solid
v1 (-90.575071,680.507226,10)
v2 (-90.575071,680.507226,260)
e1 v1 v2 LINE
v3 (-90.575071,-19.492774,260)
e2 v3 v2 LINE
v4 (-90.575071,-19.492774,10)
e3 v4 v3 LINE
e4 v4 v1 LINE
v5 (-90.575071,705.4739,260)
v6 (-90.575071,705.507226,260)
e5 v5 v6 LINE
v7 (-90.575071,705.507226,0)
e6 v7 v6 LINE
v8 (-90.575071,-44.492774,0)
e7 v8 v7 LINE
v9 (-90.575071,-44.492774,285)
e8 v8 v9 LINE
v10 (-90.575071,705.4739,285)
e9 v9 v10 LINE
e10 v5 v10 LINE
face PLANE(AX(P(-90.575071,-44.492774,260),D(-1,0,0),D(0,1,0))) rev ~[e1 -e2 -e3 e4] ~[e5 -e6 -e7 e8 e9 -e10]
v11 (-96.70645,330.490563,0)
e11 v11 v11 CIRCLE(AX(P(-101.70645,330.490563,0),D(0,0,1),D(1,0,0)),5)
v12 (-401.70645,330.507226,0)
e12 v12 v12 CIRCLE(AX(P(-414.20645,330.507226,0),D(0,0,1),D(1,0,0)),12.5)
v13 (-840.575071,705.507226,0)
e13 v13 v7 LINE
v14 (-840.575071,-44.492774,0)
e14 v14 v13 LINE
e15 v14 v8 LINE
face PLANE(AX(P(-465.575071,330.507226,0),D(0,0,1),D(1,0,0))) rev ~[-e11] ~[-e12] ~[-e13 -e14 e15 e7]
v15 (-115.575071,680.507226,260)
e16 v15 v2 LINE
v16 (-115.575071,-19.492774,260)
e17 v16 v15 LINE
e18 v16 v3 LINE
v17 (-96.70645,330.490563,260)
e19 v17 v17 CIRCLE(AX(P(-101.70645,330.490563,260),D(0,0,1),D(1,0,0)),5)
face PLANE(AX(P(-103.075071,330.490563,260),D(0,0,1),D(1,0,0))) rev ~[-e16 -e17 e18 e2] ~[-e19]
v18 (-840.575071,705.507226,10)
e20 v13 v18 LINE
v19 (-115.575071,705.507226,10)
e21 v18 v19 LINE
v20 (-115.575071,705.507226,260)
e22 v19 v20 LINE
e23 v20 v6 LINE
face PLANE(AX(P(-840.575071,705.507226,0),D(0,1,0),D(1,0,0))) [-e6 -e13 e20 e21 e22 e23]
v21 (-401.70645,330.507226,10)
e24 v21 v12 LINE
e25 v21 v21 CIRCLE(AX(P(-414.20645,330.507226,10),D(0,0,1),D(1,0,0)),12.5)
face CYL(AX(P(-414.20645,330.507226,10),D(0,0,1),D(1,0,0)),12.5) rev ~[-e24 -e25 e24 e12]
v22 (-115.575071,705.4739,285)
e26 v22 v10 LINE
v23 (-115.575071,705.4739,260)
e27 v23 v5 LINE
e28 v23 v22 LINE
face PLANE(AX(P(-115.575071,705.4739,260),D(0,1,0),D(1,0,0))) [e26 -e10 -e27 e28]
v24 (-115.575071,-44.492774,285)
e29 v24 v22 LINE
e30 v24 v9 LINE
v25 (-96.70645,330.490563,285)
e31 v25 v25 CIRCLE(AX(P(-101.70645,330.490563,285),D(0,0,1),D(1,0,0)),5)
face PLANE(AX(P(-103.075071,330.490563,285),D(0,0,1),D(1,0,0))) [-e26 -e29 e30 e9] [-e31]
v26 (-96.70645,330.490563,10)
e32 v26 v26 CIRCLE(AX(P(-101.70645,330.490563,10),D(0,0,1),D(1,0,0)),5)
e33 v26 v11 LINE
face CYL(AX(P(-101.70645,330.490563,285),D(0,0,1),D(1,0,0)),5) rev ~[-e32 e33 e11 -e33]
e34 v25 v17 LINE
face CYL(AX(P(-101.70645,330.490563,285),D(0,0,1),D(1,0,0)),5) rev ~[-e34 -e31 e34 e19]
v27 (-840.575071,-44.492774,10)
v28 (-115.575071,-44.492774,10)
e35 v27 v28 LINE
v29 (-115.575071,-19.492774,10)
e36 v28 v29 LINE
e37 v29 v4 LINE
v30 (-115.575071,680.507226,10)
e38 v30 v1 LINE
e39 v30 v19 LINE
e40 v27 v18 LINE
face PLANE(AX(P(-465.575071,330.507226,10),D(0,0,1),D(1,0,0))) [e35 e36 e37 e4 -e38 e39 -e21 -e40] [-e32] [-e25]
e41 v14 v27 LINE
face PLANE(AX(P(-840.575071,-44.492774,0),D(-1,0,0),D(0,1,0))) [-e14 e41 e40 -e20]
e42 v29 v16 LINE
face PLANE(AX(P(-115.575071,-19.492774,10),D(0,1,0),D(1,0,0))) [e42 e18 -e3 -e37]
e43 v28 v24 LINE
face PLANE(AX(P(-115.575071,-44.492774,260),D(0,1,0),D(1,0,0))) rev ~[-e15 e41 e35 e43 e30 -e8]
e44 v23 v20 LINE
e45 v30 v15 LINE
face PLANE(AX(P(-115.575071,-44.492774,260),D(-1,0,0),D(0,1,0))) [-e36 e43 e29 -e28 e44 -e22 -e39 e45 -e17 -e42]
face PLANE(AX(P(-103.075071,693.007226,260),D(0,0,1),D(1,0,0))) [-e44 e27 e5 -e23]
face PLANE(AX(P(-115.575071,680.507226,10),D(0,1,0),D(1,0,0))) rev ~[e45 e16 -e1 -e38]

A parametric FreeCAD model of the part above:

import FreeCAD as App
import Part
import Sketcher
Q = App.Units.Quantity

doc = App.newDocument("Part")
params = doc.addObject("Spreadsheet::Sheet", "Params")
for row, (alias, value) in enumerate([
    ("sketch1_width", "750 mm"),
    ("pad1_length", "10 mm"),
    ("sketch2_width", "25 mm"),
    ("pad2_length", "250 mm"),
    ("sketch3_width", "25 mm"),
    ("pad3_length", "25 mm"),
    ("sketch4_diameter", "10 mm"),
    ("sketch5_diameter", "25 mm"),
    ("pocket2_length", "25 mm"),
], start=1):
    params.set(f"A{row}", alias)
    params.set(f"B{row}", "=" + value)
    params.setAlias(f"B{row}", alias)

body = doc.addObject("PartDesign::Body", "Body")

# Sketch on XY plane
sketch1 = doc.addObject("Sketcher::SketchObject", "Sketch")
body.addObject(sketch1)
sketch1.AttachmentSupport = (doc.XY_Plane, [""])
sketch1.MapMode = "FlatFace"
sketch1.addGeometry(Part.LineSegment(App.Vector(-840.575071, 705.507226, 0), App.Vector(-840.575071, -44.492774, 0)), False)
sketch1.addGeometry(Part.LineSegment(App.Vector(-840.575071, -44.492774, 0), App.Vector(-90.575071, -44.492774, 0)), False)
sketch1.addGeometry(Part.LineSegment(App.Vector(-90.575071, -44.492774, 0), App.Vector(-90.575071, 705.507226, 0)), False)
sketch1.addGeometry(Part.LineSegment(App.Vector(-90.575071, 705.507226, 0), App.Vector(-840.575071, 705.507226, 0)), False)
sketch1.addConstraint(Sketcher.Constraint("Coincident", 0, 2, 1, 1))
sketch1.addConstraint(Sketcher.Constraint("Coincident", 1, 2, 2, 1))
sketch1.addConstraint(Sketcher.Constraint("Coincident", 2, 2, 3, 1))
sketch1.addConstraint(Sketcher.Constraint("Coincident", 3, 2, 0, 1))
sketch1.addConstraint(Sketcher.Constraint("Vertical", 0))
sketch1.addConstraint(Sketcher.Constraint("Horizontal", 1))
sketch1.addConstraint(Sketcher.Constraint("Vertical", 2))
sketch1.addConstraint(Sketcher.Constraint("Horizontal", 3))
sketch1.addConstraint(Sketcher.Constraint("Equal", 3, 0))
sketch1.addConstraint(Sketcher.Constraint("DistanceX", 1, 1, 1, 2, Q("750 mm")))
sketch1.addConstraint(Sketcher.Constraint("DistanceX", 0, 2, -1, 1, Q("840.575071 mm")))
sketch1.addConstraint(Sketcher.Constraint("DistanceY", 0, 2, -1, 1, Q("44.492774 mm")))
sketch1.setExpression("Constraints[9]", "Params.sketch1_width")
pad1 = doc.addObject("PartDesign::Pad", "Pad")
body.addObject(pad1)
pad1.Profile = sketch1
pad1.setExpression("Length", "Params.pad1_length")

# Sketch on XY plane
sketch2 = doc.addObject("Sketcher::SketchObject", "Sketch001")
body.addObject(sketch2)
sketch2.AttachmentSupport = (doc.XY_Plane, [""])
sketch2.MapMode = "FlatFace"
sketch2.AttachmentOffset = App.Placement(App.Vector(0, 0, 10), App.Rotation())
sketch2.addGeometry(Part.LineSegment(App.Vector(-115.575071, -19.492774, 0), App.Vector(-115.575071, -44.492774, 0)), False)
sketch2.addGeometry(Part.LineSegment(App.Vector(-115.575071, -44.492774, 0), App.Vector(-90.575071, -44.492774, 0)), False)
sketch2.addGeometry(Part.LineSegment(App.Vector(-90.575071, -44.492774, 0), App.Vector(-90.575071, -19.492774, 0)), False)
sketch2.addGeometry(Part.LineSegment(App.Vector(-90.575071, -19.492774, 0), App.Vector(-115.575071, -19.492774, 0)), False)
sketch2.addGeometry(Part.LineSegment(App.Vector(-115.575071, 705.507226, 0), App.Vector(-115.575071, 680.507226, 0)), False)
sketch2.addGeometry(Part.LineSegment(App.Vector(-115.575071, 680.507226, 0), App.Vector(-90.575071, 680.507226, 0)), False)
sketch2.addGeometry(Part.LineSegment(App.Vector(-90.575071, 680.507226, 0), App.Vector(-90.575071, 705.507226, 0)), False)
sketch2.addGeometry(Part.LineSegment(App.Vector(-90.575071, 705.507226, 0), App.Vector(-115.575071, 705.507226, 0)), False)
sketch2.addConstraint(Sketcher.Constraint("Coincident", 0, 2, 1, 1))
sketch2.addConstraint(Sketcher.Constraint("Coincident", 1, 2, 2, 1))
sketch2.addConstraint(Sketcher.Constraint("Coincident", 2, 2, 3, 1))
sketch2.addConstraint(Sketcher.Constraint("Coincident", 3, 2, 0, 1))
sketch2.addConstraint(Sketcher.Constraint("Coincident", 4, 2, 5, 1))
sketch2.addConstraint(Sketcher.Constraint("Coincident", 5, 2, 6, 1))
sketch2.addConstraint(Sketcher.Constraint("Coincident", 6, 2, 7, 1))
sketch2.addConstraint(Sketcher.Constraint("Coincident", 7, 2, 4, 1))
sketch2.addConstraint(Sketcher.Constraint("Vertical", 0))
sketch2.addConstraint(Sketcher.Constraint("Horizontal", 1))
sketch2.addConstraint(Sketcher.Constraint("Vertical", 2))
sketch2.addConstraint(Sketcher.Constraint("Horizontal", 3))
sketch2.addConstraint(Sketcher.Constraint("Vertical", 4))
sketch2.addConstraint(Sketcher.Constraint("Horizontal", 5))
sketch2.addConstraint(Sketcher.Constraint("Vertical", 6))
sketch2.addConstraint(Sketcher.Constraint("Horizontal", 7))
sketch2.addConstraint(Sketcher.Constraint("Vertical", 3, 2, 4, 2))
sketch2.addConstraint(Sketcher.Constraint("Vertical", 2, 2, 5, 2))
sketch2.addConstraint(Sketcher.Constraint("Equal", 7, 0))
sketch2.addConstraint(Sketcher.Constraint("Equal", 2, 4))
sketch2.addConstraint(Sketcher.Constraint("DistanceX", 1, 1, 1, 2, Q("25 mm")))
sketch2.addConstraint(Sketcher.Constraint("DistanceY", 3, 2, 4, 2, Q("700 mm")))
sketch2.addConstraint(Sketcher.Constraint("DistanceX", 0, 2, -1, 1, Q("115.575071 mm")))
sketch2.addConstraint(Sketcher.Constraint("DistanceY", 0, 2, -1, 1, Q("44.492774 mm")))
sketch2.setExpression("Constraints[20]", "Params.sketch2_width")
pad2 = doc.addObject("PartDesign::Pad", "Pad001")
body.addObject(pad2)
pad2.Profile = sketch2
pad2.setExpression("Length", "Params.pad2_length")

# Sketch on XY plane
sketch3 = doc.addObject("Sketcher::SketchObject", "Sketch002")
body.addObject(sketch3)
sketch3.AttachmentSupport = (doc.XY_Plane, [""])
sketch3.MapMode = "FlatFace"
sketch3.AttachmentOffset = App.Placement(App.Vector(0, 0, 260), App.Rotation())
sketch3.addGeometry(Part.LineSegment(App.Vector(-115.575071, 705.4739, 0), App.Vector(-115.575071, -44.492774, 0)), False)
sketch3.addGeometry(Part.LineSegment(App.Vector(-115.575071, -44.492774, 0), App.Vector(-90.575071, -44.492774, 0)), False)
sketch3.addGeometry(Part.LineSegment(App.Vector(-90.575071, -44.492774, 0), App.Vector(-90.575071, 705.4739, 0)), False)
sketch3.addGeometry(Part.LineSegment(App.Vector(-90.575071, 705.4739, 0), App.Vector(-115.575071, 705.4739, 0)), False)
sketch3.addConstraint(Sketcher.Constraint("Coincident", 0, 2, 1, 1))
sketch3.addConstraint(Sketcher.Constraint("Coincident", 1, 2, 2, 1))
sketch3.addConstraint(Sketcher.Constraint("Coincident", 2, 2, 3, 1))
sketch3.addConstraint(Sketcher.Constraint("Coincident", 3, 2, 0, 1))
sketch3.addConstraint(Sketcher.Constraint("Vertical", 0))
sketch3.addConstraint(Sketcher.Constraint("Horizontal", 1))
sketch3.addConstraint(Sketcher.Constraint("Vertical", 2))
sketch3.addConstraint(Sketcher.Constraint("Horizontal", 3))
sketch3.addConstraint(Sketcher.Constraint("DistanceX", 1, 1, 1, 2, Q("25 mm")))
sketch3.addConstraint(Sketcher.Constraint("DistanceY", -1, 1, 2, 2, Q("705.4739 mm")))
sketch3.addConstraint(Sketcher.Constraint("DistanceY", 0, 2, 0, 1, Q("749.966674 mm")))
sketch3.addConstraint(Sketcher.Constraint("DistanceX", 0, 2, -1, 1, Q("115.575071 mm")))
sketch3.setExpression("Constraints[8]", "Params.sketch3_width")
pad3 = doc.addObject("PartDesign::Pad", "Pad002")
body.addObject(pad3)
pad3.Profile = sketch3
pad3.setExpression("Length", "Params.pad3_length")

# Sketch on XY plane
sketch4 = doc.addObject("Sketcher::SketchObject", "Sketch003")
body.addObject(sketch4)
sketch4.AttachmentSupport = (doc.XY_Plane, [""])
sketch4.MapMode = "FlatFace"
sketch4.AttachmentOffset = App.Placement(App.Vector(0, 0, 285), App.Rotation())
sketch4.addGeometry(Part.Circle(App.Vector(-101.70645, 330.490563, 0), App.Vector(0, 0, 1), 5), False)
sketch4.addConstraint(Sketcher.Constraint("Diameter", 0, Q("10 mm")))
sketch4.addConstraint(Sketcher.Constraint("DistanceX", 0, 3, -1, 1, Q("101.70645 mm")))
sketch4.addConstraint(Sketcher.Constraint("DistanceY", -1, 1, 0, 3, Q("330.490563 mm")))
sketch4.setExpression("Constraints[0]", "Params.sketch4_diameter")
pocket1 = doc.addObject("PartDesign::Pocket", "Pocket")
body.addObject(pocket1)
pocket1.Profile = sketch4
pocket1.Type = "ThroughAll"

# Sketch on XY plane
sketch5 = doc.addObject("Sketcher::SketchObject", "Sketch004")
body.addObject(sketch5)
sketch5.AttachmentSupport = (doc.XY_Plane, [""])
sketch5.MapMode = "FlatFace"
sketch5.AttachmentOffset = App.Placement(App.Vector(0, 0, 10), App.Rotation())
sketch5.addGeometry(Part.Circle(App.Vector(-414.20645, 330.507226, 0), App.Vector(0, 0, 1), 12.5), False)
sketch5.addConstraint(Sketcher.Constraint("Diameter", 0, Q("25 mm")))
sketch5.addConstraint(Sketcher.Constraint("DistanceX", 0, 3, -1, 1, Q("414.20645 mm")))
sketch5.addConstraint(Sketcher.Constraint("DistanceY", -1, 1, 0, 3, Q("330.507226 mm")))
sketch5.setExpression("Constraints[0]", "Params.sketch5_diameter")
pocket2 = doc.addObject("PartDesign::Pocket", "Pocket001")
body.addObject(pocket2)
pocket2.Profile = sketch5
pocket2.setExpression("Length", "Params.pocket2_length")

doc.recompute()
